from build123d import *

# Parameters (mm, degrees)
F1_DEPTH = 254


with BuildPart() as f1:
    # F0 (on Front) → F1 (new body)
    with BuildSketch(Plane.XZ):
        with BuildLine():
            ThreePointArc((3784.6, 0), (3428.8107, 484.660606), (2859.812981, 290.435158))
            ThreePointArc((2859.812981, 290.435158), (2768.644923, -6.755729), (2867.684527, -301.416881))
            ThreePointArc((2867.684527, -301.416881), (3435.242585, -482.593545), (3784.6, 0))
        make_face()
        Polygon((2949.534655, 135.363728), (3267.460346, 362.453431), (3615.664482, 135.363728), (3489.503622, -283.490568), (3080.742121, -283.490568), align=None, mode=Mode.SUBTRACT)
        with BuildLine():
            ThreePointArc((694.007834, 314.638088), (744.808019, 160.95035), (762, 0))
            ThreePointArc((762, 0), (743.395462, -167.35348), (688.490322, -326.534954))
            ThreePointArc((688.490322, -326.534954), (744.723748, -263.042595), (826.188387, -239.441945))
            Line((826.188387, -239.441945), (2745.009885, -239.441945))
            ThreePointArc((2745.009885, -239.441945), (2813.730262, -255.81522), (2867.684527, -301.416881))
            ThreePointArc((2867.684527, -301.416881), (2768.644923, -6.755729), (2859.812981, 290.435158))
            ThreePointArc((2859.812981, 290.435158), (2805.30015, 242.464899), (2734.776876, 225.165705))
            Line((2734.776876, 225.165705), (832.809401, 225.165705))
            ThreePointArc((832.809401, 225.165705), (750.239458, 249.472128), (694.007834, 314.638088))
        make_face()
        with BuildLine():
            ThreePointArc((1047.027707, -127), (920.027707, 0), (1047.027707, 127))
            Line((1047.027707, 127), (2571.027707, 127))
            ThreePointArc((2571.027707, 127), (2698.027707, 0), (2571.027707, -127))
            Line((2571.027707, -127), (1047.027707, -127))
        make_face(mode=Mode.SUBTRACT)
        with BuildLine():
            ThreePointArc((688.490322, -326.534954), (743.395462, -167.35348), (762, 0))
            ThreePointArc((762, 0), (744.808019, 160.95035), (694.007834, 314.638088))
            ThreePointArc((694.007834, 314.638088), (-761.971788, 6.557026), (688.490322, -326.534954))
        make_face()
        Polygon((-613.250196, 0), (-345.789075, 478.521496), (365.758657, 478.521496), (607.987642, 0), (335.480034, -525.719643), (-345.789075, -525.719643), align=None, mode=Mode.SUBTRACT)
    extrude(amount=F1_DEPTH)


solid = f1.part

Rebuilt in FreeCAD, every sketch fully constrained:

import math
import FreeCAD as App
import Part
import Sketcher
Q = App.Units.Quantity


def add_polygon(sketch, points):
    """Adds a closed chain of lines whose ends are joined by coincident constraints."""
    first, n = sketch.GeometryCount, len(points)
    for a, b in zip(points, points[1:] + points[:1]):
        sketch.addGeometry(Part.LineSegment(App.Vector(*a, 0), App.Vector(*b, 0)), False)
    for i in range(n):
        sketch.addConstraint(Sketcher.Constraint("Coincident", first + i, 2, first + (i + 1) % n, 1))

doc = App.newDocument("Part")
body = doc.addObject("PartDesign::Body", "Body")

# Sketch on XZ plane
sketch1 = body.newObject("Sketcher::SketchObject", "Sketch")
sketch1.AttachmentSupport = (doc.getObject("XZ_Plane"), [""])
sketch1.MapMode = "FlatFace"
sketch1.addGeometry(Part.ArcOfCircle(Part.Circle(App.Vector(3277, 0, 0), App.Vector(0, 0, 1), 508), math.radians(0), math.radians(145)), False)  # 0
sketch1.addGeometry(Part.ArcOfCircle(Part.Circle(App.Vector(2735, 378, 0), App.Vector(0, 0, 1), 152), math.radians(-90), math.radians(-35)), False)  # 1
sketch1.addGeometry(Part.LineSegment(App.Vector(2735, 225, 0), App.Vector(833, 225, 0)), False)  # 2
sketch1.addGeometry(Part.ArcOfCircle(Part.Circle(App.Vector(833, 378, 0), App.Vector(0, 0, 1), 152), math.radians(-156), math.radians(-90)), False)  # 3
sketch1.addGeometry(Part.ArcOfCircle(Part.Circle(App.Vector(0, 0, 0), App.Vector(0, 0, 1), 762), math.radians(24), math.radians(335)), False)  # 4
sketch1.addGeometry(Part.ArcOfCircle(Part.Circle(App.Vector(826, -392, 0), App.Vector(0, 0, 1), 152), math.radians(90), math.radians(155)), False)  # 5
sketch1.addGeometry(Part.LineSegment(App.Vector(826, -239, 0), App.Vector(2745, -239, 0)), False)  # 6
sketch1.addGeometry(Part.ArcOfCircle(Part.Circle(App.Vector(2745, -392, 0), App.Vector(0, 0, 1), 152), math.radians(36), math.radians(90)), False)  # 7
sketch1.addGeometry(Part.ArcOfCircle(Part.Circle(App.Vector(3277, 0, 0), App.Vector(0, 0, 1), 508), math.radians(-144), math.radians(0)), False)  # 8
add_polygon(sketch1, [(-346, -526), (-613, 0), (-346, 479), (366, 479), (608, 0), (335, -526)])  # lines 9-14
sketch1.addGeometry(Part.LineSegment(App.Vector(2571, -127, 0), App.Vector(1047, -127, 0)), False)  # 15
sketch1.addGeometry(Part.ArcOfCircle(Part.Circle(App.Vector(1047, 0, 0), App.Vector(0, 0, 1), 127), math.radians(90), math.radians(270)), False)  # 16
sketch1.addGeometry(Part.LineSegment(App.Vector(1047, 127, 0), App.Vector(2571, 127, 0)), False)  # 17
sketch1.addGeometry(Part.ArcOfCircle(Part.Circle(App.Vector(2571, 0, 0), App.Vector(0, 0, 1), 127), math.radians(-90), math.radians(90)), False)  # 18
add_polygon(sketch1, [(3081, -283), (2950, 135), (3267, 362), (3616, 135), (3490, -283)])  # lines 19-23
sketch1.addConstraint([
    Sketcher.Constraint("Tangent", 0, 2, 1, 2),
    Sketcher.Constraint("Tangent", 1, 1, 2, 1),
    Sketcher.Constraint("Tangent", 2, 2, 3, 2),
    Sketcher.Constraint("Tangent", 3, 1, 4, 1),
    Sketcher.Constraint("Tangent", 4, 2, 5, 2),
    Sketcher.Constraint("Tangent", 5, 1, 6, 1),
    Sketcher.Constraint("Tangent", 6, 2, 7, 2),
    Sketcher.Constraint("Tangent", 7, 1, 8, 1),
    Sketcher.Constraint("Coincident", 8, 2, 0, 1),
    Sketcher.Constraint("Tangent", 15, 2, 16, 2),
    Sketcher.Constraint("Tangent", 16, 1, 17, 1),
    Sketcher.Constraint("Tangent", 17, 2, 18, 2),
    Sketcher.Constraint("Tangent", 18, 1, 15, 1),
    Sketcher.Constraint("Horizontal", 2),
    Sketcher.Constraint("Horizontal", 6),
    Sketcher.Constraint("Horizontal", 11),
    Sketcher.Constraint("Horizontal", 14),
    Sketcher.Constraint("Horizontal", 15),
    Sketcher.Constraint("Horizontal", 17),
    Sketcher.Constraint("Horizontal", 23),
    Sketcher.Constraint("Coincident", 4, 3, -1, 1),
    Sketcher.Constraint("Coincident", 8, 3, 0, 3),
    Sketcher.Constraint("Equal", 3, 5),
    Sketcher.Constraint("Equal", 1, 7),
    Sketcher.Constraint("PointOnObject", 0, 3, -1),
    Sketcher.Constraint("PointOnObject", 16, 3, -1),
    Sketcher.Constraint("PointOnObject", 8, 2, -1),
    Sketcher.Constraint("PointOnObject", 9, 2, -1),
    Sketcher.Constraint("PointOnObject", 12, 2, -1),
    Sketcher.Constraint("Horizontal", 19, 2, 21, 2),
    Sketcher.Constraint("Vertical", 10, 2, 14, 2),
    Sketcher.Constraint("Radius", 0, Q("20 in")),
    Sketcher.Constraint("Radius", 1, Q("5.9999999 in")),
    Sketcher.Constraint("Radius", 3, Q("6 in")),
    Sketcher.Constraint("Radius", 4, Q("30 in")),
    Sketcher.Constraint("Radius", 16, Q("5 in")),
    Sketcher.Constraint("DistanceX", 15, 2, 15, 1, Q("60 in")),
    Sketcher.Constraint("DistanceX", -1, 1, 0, 3, Q("129 in")),
    Sketcher.Constraint("DistanceX", 23, 2, 23, 1, 408.761501),
    Sketcher.Constraint("DistanceX", 11, 1, 11, 2, 711.547732),
    Sketcher.Constraint("DistanceX", 14, 2, 14, 1, 681.269109),
    Sketcher.Constraint("DistanceX", -1, 1, 3, 3, 832.809401),
    Sketcher.Constraint("DistanceX", 5, 3, 7, 3, 1918.821499),
    Sketcher.Constraint("DistanceY", 13, 2, 5, 1, 286.277698),
    Sketcher.Constraint("Distance", 9, 589.844551),
    Sketcher.Constraint("Distance", 10, 548.19547),
    Sketcher.Constraint("Distance", 13, 592.14993),
    Sketcher.Constraint("Distance", 19, 438.924049),
    Sketcher.Constraint("DistanceX", -1, 1, 12, 2, 607.987642),
    Sketcher.Constraint("DistanceY", -1, 1, 19, 2, 135.363728),
    Sketcher.Constraint("DistanceY", -1, 1, 20, 2, 362.453431),
    Sketcher.Constraint("DistanceY", 22, 2, -1, 1, 283.490568),
    Sketcher.Constraint("DistanceX", -1, 1, 23, 2, 3080.742121),
    Sketcher.Constraint("DistanceX", 5, 3, 16, 3, 220.839319),
    Sketcher.Constraint("DistanceX", 19, 2, 20, 2, 317.925691),
    Sketcher.Constraint("DistanceX", 22, 2, 21, 2, 126.16086),
])
pad1 = body.newObject("PartDesign::Pad", "Pad")
pad1.Profile = sketch1
pad1.Length = Q("10 in")

doc.recompute()
